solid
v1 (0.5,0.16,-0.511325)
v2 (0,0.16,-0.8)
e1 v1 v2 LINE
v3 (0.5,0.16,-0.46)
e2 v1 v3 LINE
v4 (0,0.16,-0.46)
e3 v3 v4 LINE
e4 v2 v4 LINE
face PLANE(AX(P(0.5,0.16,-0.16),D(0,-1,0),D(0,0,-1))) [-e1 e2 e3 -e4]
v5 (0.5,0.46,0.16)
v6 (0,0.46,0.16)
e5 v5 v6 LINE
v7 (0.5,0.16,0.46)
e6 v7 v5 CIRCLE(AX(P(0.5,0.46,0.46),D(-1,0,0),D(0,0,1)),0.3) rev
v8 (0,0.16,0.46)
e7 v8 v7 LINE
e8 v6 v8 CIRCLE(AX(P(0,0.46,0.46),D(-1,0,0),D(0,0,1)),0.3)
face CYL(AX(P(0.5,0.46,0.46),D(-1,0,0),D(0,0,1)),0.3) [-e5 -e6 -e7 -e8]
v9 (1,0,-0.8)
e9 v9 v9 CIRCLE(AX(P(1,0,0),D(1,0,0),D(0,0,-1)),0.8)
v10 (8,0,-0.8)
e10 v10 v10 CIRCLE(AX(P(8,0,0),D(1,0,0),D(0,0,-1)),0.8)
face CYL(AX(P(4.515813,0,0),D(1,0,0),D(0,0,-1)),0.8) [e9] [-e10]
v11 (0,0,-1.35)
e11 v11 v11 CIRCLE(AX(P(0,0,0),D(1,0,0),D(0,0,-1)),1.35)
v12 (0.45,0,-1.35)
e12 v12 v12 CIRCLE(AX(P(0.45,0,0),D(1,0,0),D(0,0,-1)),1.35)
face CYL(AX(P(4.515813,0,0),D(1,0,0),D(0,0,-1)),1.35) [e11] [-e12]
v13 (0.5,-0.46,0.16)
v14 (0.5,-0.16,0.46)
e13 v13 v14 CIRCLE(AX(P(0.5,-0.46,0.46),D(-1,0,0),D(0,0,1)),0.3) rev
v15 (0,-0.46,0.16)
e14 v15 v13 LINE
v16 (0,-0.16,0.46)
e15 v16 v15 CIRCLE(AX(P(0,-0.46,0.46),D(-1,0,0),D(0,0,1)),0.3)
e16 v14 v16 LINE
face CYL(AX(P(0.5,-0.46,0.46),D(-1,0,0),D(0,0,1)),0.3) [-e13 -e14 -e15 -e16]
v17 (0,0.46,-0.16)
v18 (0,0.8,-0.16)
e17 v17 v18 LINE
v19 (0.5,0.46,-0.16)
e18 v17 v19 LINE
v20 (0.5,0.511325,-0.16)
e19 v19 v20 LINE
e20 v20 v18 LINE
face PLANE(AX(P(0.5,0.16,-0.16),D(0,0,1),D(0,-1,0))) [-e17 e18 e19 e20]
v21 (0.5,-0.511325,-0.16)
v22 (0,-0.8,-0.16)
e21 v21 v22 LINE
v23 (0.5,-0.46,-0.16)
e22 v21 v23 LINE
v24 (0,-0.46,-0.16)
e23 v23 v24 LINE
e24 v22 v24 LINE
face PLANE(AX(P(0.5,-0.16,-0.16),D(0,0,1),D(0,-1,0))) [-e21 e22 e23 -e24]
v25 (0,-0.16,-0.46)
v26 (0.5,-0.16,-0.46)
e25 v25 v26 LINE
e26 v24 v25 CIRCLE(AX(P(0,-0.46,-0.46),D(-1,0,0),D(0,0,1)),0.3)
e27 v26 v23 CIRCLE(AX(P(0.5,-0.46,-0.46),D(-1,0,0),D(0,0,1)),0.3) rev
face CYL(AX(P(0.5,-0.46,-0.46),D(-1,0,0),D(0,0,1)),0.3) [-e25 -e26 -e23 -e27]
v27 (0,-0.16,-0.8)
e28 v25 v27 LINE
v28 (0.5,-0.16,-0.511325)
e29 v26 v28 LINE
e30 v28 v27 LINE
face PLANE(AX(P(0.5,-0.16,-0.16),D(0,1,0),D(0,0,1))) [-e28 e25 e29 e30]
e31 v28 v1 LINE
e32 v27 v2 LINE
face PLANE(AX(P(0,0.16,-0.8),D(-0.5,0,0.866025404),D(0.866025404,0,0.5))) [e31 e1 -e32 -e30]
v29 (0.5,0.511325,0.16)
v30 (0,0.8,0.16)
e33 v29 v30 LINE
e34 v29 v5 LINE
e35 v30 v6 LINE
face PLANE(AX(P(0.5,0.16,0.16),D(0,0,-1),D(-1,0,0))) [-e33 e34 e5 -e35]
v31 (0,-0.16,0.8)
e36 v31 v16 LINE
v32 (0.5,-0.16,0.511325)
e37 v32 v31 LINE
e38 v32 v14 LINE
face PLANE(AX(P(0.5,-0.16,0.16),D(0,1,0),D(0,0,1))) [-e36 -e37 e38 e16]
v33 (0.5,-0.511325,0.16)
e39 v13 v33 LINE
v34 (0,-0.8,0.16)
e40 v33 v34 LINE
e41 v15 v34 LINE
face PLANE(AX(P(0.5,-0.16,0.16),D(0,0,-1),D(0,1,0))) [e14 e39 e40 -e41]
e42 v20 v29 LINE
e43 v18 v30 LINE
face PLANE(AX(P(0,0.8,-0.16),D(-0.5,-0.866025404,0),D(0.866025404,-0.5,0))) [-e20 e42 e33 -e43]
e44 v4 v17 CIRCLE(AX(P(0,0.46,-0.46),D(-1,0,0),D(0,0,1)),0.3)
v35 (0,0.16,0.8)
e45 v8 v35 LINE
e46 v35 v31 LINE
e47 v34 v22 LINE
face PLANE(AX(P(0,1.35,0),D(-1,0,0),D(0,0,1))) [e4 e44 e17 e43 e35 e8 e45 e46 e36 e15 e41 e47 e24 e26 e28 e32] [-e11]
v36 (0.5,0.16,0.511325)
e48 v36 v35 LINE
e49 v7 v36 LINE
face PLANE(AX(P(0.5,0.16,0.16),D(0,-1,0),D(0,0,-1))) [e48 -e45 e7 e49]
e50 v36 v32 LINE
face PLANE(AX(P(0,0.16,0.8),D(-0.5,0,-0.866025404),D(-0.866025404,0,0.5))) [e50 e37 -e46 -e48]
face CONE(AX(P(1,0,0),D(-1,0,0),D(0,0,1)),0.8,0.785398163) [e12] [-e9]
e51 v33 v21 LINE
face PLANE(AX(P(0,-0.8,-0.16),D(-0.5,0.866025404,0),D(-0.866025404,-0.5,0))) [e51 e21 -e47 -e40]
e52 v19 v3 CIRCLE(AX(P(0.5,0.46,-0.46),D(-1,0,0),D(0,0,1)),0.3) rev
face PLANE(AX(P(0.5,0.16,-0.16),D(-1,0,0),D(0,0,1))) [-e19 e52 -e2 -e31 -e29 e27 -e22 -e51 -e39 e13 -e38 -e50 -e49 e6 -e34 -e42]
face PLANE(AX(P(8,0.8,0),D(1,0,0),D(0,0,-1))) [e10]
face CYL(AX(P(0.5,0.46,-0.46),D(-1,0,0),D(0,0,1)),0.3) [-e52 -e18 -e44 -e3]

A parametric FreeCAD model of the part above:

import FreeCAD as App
import Part
import Sketcher
from FreeCAD import Vector
Q = App.Units.Quantity


def edges_at(feature, points):
    """Names of the edges that pass closest to the given points."""
    edges = feature.Shape.Edges
    near = lambda p: min(range(len(edges)), key=lambda i: edges[i].distToShape(Part.Vertex(*p))[0])
    return sorted({f"Edge{near(p) + 1}" for p in points})


def faces_at(feature, points):
    """Names of the faces that lie closest to the given points."""
    faces = feature.Shape.Faces
    near = lambda p: min(range(len(faces)), key=lambda i: faces[i].distToShape(Part.Vertex(*p))[0])
    return sorted({f"Face{near(p) + 1}" for p in points})

doc = App.newDocument("Part")
body = doc.addObject("PartDesign::Body", "Body")

sketch1 = body.newObject("Sketcher::SketchObject", "Sketch")
sketch1.AttachmentSupport = (doc.getObject("XY_Plane"), [""])
sketch1.MapMode = "FlatFace"
sketch1.addGeometry([
    Part.LineSegment(Vector(8, 0.8, 0), Vector(1, 0.8, 0)),
    Part.LineSegment(Vector(1, 0.8, 0), Vector(0.45, 1.35, 0)),
    Part.LineSegment(Vector(0.45, 1.35, 0), Vector(0, 1.35, 0)),
    Part.LineSegment(Vector(0, 1.35, 0), Vector(0, 0, 0)),
    Part.LineSegment(Vector(0, 0, 0), Vector(8, 0, 0)),
    Part.LineSegment(Vector(8, 0, 0), Vector(8, 0.8, 0)),
], False)
sketch1.addConstraint([
    Sketcher.Constraint("Coincident", 0, 2, 1, 1),
    Sketcher.Constraint("Coincident", 1, 2, 2, 1),
    Sketcher.Constraint("Coincident", 2, 2, 3, 1),
    Sketcher.Constraint("Coincident", 3, 2, 4, 1),
    Sketcher.Constraint("Coincident", 4, 2, 5, 1),
    Sketcher.Constraint("Coincident", 5, 2, 0, 1),
    Sketcher.Constraint("Horizontal", 0),
    Sketcher.Constraint("Horizontal", 2),
    Sketcher.Constraint("Vertical", 3),
    Sketcher.Constraint("Horizontal", 4),
    Sketcher.Constraint("Vertical", 5),
    Sketcher.Constraint("Coincident", 3, 2, -1, 1),
    Sketcher.Constraint("DistanceX", 0, 2, 0, 1, Q("7 mm")),
    Sketcher.Constraint("DistanceX", 4, 1, 4, 2, Q("8 mm")),
    Sketcher.Constraint("Angle", 1, Q("135 deg")),
    Sketcher.Constraint("DistanceY", 5, 1, 5, 2, Q("0.8 mm")),
    Sketcher.Constraint("DistanceX", 2, 2, 2, 1, Q("0.45 mm")),
])
revolution = body.newObject("PartDesign::Revolution", "Revolution")
revolution.Profile = sketch1
revolution.ReferenceAxis = (sketch1, ["H_Axis"])
revolution.Angle = 360

sketch2 = body.newObject("Sketcher::SketchObject", "Sketch001")
sketch2.AttachmentSupport = (doc.getObject("YZ_Plane"), [""])
sketch2.MapMode = "FlatFace"
sketch2.addGeometry([
    Part.LineSegment(Vector(0.16, -0.16, 0), Vector(0.8, -0.16, 0)),
    Part.LineSegment(Vector(0.8, -0.16, 0), Vector(0.8, 0.16, 0)),
    Part.LineSegment(Vector(0.8, 0.16, 0), Vector(0.16, 0.16, 0)),
    Part.LineSegment(Vector(0.16, 0.16, 0), Vector(0.16, 0.8, 0)),
    Part.LineSegment(Vector(0.16, 0.8, 0), Vector(-0.16, 0.8, 0)),
    Part.LineSegment(Vector(-0.16, 0.8, 0), Vector(-0.16, 0.16, 0)),
    Part.LineSegment(Vector(-0.16, 0.16, 0), Vector(-0.8, 0.16, 0)),
    Part.LineSegment(Vector(-0.8, 0.16, 0), Vector(-0.8, -0.16, 0)),
    Part.LineSegment(Vector(-0.8, -0.16, 0), Vector(-0.16, -0.16, 0)),
    Part.LineSegment(Vector(-0.16, -0.16, 0), Vector(-0.16, -0.8, 0)),
    Part.LineSegment(Vector(-0.16, -0.8, 0), Vector(0.16, -0.8, 0)),
    Part.LineSegment(Vector(0.16, -0.8, 0), Vector(0.16, -0.16, 0)),
], False)
sketch2.addConstraint([
    Sketcher.Constraint("Coincident", 0, 2, 1, 1),
    Sketcher.Constraint("Coincident", 1, 2, 2, 1),
    Sketcher.Constraint("Coincident", 2, 2, 3, 1),
    Sketcher.Constraint("Coincident", 3, 2, 4, 1),
    Sketcher.Constraint("Coincident", 4, 2, 5, 1),
    Sketcher.Constraint("Coincident", 5, 2, 6, 1),
    Sketcher.Constraint("Coincident", 6, 2, 7, 1),
    Sketcher.Constraint("Coincident", 7, 2, 8, 1),
    Sketcher.Constraint("Coincident", 8, 2, 9, 1),
    Sketcher.Constraint("Coincident", 9, 2, 10, 1),
    Sketcher.Constraint("Coincident", 10, 2, 11, 1),
    Sketcher.Constraint("Coincident", 11, 2, 0, 1),
    Sketcher.Constraint("Horizontal", 0),
    Sketcher.Constraint("Vertical", 1),
    Sketcher.Constraint("Horizontal", 2),
    Sketcher.Constraint("Vertical", 3),
    Sketcher.Constraint("Horizontal", 4),
    Sketcher.Constraint("Vertical", 5),
    Sketcher.Constraint("Horizontal", 6),
    Sketcher.Constraint("Vertical", 7),
    Sketcher.Constraint("Horizontal", 8),
    Sketcher.Constraint("Vertical", 9),
    Sketcher.Constraint("Horizontal", 10),
    Sketcher.Constraint("Vertical", 11),
    Sketcher.Constraint("Symmetric", 0, 2, 6, 2, -1, 1),
    Sketcher.Constraint("Symmetric", 2, 2, 8, 2, -1, 1),
    Sketcher.Constraint("Symmetric", 4, 2, 10, 2, -1, 1),
    Sketcher.Constraint("Symmetric", 2, 2, 5, 2, -2),
    Sketcher.Constraint("Equal", 10, 1),
    Sketcher.Constraint("Equal", 8, 3),
    Sketcher.Constraint("DistanceX", 0, 1, 0, 2, Q("0.64 mm")),
    Sketcher.Constraint("DistanceX", 4, 2, 4, 1, Q("0.32 mm")),
])
pocket1 = body.newObject("PartDesign::Pocket", "Pocket")
pocket1.Profile = sketch2
pocket1.Length = 0.5
pocket1.Reversed = True
doc.recompute()

draft = body.newObject("PartDesign::Draft", "Draft")
draft.Base = (pocket1, faces_at(pocket1, [
    (0.25, 0.8, 0),
    (0.25, 0, 0.8),
    (0.25, -0.8, 0),
    (0.25, 0, -0.8),
]))
draft.NeutralPlane = (doc.getObject("YZ_Plane"), [""])
draft.Angle = 30
draft.Reversed = True
doc.recompute()

fillet = body.newObject("PartDesign::Fillet", "Fillet")
fillet.Base = (draft, edges_at(draft, [
    (0.25, 0.16, 0.16),
    (0.25, -0.16, 0.16),
    (0.25, -0.16, -0.16),
    (0.25, 0.16, -0.16),
]))
fillet.Radius = 0.3

doc.recompute()
